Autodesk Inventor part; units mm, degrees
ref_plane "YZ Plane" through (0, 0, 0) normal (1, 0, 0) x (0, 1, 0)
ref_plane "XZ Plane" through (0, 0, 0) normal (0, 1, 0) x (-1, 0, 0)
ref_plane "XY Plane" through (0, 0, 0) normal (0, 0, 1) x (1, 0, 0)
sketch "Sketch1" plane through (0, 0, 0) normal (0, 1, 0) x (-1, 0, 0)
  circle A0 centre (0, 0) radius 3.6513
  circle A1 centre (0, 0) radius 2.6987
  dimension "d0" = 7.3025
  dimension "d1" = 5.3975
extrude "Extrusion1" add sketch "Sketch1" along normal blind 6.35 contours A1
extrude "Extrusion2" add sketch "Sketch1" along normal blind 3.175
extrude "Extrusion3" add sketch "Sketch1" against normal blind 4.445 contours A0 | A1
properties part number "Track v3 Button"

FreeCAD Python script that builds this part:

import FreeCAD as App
import Part
import Sketcher

V = App.Vector
Q = App.Units.Quantity

doc = App.newDocument("Part")
params = doc.addObject("Spreadsheet::Sheet", "Params")
for row, (alias, value) in enumerate([
    ("pad1_length", "0.25 in"),
    ("pad2_length", "0.125 in"),
    ("pad3_length", "0.175 in"),
], start=1):
    params.set(f"A{row}", alias)
    params.set(f"B{row}", "=" + value)
    params.setAlias(f"B{row}", alias)

body = doc.addObject("PartDesign::Body", "Body")

sketch1 = body.newObject("Sketcher::SketchObject", "Sketch")
sketch1.AttachmentSupport = (doc.getObject("XZ_Plane"), [""])
sketch1.MapMode = "FlatFace"
sketch1.addGeometry(Part.Circle(V(0, 0, 0), V(0, 0, 1), 2.7), False)
sketch1.addConstraint([
    Sketcher.Constraint("Coincident", 0, 3, -1, 1),
    Sketcher.Constraint("Diameter", 0, Q("0.2125 in")),
])
pad1 = body.newObject("PartDesign::Pad", "Pad")
pad1.Profile = sketch1
pad1.setExpression("Length", "Params.pad1_length")
pad1.Reversed = True

sketch2 = body.newObject("Sketcher::SketchObject", "Sketch001")
sketch2.AttachmentSupport = (doc.getObject("XZ_Plane"), [""])
sketch2.MapMode = "FlatFace"
sketch2.addGeometry([
    Part.Circle(V(0, 0, 0), V(0, 0, 1), 3.7),
    Part.Circle(V(0, 0, 0), V(0, 0, 1), 2.7),
], False)
sketch2.addConstraint([
    Sketcher.Constraint("Coincident", 0, 3, -1, 1),
    Sketcher.Constraint("Coincident", 1, 3, -1, 1),
    Sketcher.Constraint("Diameter", 0, Q("0.2875 in")),
    Sketcher.Constraint("Diameter", 1, Q("0.2125 in")),
])
pad2 = body.newObject("PartDesign::Pad", "Pad001")
pad2.Profile = sketch2
pad2.setExpression("Length", "Params.pad2_length")
pad2.Reversed = True

sketch3 = body.newObject("Sketcher::SketchObject", "Sketch002")
sketch3.AttachmentSupport = (doc.getObject("XZ_Plane"), [""])
sketch3.MapMode = "FlatFace"
sketch3.addGeometry(Part.Circle(V(0, 0, 0), V(0, 0, 1), 3.7), False)
sketch3.addConstraint([
    Sketcher.Constraint("Coincident", 0, 3, -1, 1),
    Sketcher.Constraint("Diameter", 0, Q("0.2875 in")),
])
pad3 = body.newObject("PartDesign::Pad", "Pad002")
pad3.Profile = sketch3
pad3.setExpression("Length", "Params.pad3_length")

doc.recompute()
